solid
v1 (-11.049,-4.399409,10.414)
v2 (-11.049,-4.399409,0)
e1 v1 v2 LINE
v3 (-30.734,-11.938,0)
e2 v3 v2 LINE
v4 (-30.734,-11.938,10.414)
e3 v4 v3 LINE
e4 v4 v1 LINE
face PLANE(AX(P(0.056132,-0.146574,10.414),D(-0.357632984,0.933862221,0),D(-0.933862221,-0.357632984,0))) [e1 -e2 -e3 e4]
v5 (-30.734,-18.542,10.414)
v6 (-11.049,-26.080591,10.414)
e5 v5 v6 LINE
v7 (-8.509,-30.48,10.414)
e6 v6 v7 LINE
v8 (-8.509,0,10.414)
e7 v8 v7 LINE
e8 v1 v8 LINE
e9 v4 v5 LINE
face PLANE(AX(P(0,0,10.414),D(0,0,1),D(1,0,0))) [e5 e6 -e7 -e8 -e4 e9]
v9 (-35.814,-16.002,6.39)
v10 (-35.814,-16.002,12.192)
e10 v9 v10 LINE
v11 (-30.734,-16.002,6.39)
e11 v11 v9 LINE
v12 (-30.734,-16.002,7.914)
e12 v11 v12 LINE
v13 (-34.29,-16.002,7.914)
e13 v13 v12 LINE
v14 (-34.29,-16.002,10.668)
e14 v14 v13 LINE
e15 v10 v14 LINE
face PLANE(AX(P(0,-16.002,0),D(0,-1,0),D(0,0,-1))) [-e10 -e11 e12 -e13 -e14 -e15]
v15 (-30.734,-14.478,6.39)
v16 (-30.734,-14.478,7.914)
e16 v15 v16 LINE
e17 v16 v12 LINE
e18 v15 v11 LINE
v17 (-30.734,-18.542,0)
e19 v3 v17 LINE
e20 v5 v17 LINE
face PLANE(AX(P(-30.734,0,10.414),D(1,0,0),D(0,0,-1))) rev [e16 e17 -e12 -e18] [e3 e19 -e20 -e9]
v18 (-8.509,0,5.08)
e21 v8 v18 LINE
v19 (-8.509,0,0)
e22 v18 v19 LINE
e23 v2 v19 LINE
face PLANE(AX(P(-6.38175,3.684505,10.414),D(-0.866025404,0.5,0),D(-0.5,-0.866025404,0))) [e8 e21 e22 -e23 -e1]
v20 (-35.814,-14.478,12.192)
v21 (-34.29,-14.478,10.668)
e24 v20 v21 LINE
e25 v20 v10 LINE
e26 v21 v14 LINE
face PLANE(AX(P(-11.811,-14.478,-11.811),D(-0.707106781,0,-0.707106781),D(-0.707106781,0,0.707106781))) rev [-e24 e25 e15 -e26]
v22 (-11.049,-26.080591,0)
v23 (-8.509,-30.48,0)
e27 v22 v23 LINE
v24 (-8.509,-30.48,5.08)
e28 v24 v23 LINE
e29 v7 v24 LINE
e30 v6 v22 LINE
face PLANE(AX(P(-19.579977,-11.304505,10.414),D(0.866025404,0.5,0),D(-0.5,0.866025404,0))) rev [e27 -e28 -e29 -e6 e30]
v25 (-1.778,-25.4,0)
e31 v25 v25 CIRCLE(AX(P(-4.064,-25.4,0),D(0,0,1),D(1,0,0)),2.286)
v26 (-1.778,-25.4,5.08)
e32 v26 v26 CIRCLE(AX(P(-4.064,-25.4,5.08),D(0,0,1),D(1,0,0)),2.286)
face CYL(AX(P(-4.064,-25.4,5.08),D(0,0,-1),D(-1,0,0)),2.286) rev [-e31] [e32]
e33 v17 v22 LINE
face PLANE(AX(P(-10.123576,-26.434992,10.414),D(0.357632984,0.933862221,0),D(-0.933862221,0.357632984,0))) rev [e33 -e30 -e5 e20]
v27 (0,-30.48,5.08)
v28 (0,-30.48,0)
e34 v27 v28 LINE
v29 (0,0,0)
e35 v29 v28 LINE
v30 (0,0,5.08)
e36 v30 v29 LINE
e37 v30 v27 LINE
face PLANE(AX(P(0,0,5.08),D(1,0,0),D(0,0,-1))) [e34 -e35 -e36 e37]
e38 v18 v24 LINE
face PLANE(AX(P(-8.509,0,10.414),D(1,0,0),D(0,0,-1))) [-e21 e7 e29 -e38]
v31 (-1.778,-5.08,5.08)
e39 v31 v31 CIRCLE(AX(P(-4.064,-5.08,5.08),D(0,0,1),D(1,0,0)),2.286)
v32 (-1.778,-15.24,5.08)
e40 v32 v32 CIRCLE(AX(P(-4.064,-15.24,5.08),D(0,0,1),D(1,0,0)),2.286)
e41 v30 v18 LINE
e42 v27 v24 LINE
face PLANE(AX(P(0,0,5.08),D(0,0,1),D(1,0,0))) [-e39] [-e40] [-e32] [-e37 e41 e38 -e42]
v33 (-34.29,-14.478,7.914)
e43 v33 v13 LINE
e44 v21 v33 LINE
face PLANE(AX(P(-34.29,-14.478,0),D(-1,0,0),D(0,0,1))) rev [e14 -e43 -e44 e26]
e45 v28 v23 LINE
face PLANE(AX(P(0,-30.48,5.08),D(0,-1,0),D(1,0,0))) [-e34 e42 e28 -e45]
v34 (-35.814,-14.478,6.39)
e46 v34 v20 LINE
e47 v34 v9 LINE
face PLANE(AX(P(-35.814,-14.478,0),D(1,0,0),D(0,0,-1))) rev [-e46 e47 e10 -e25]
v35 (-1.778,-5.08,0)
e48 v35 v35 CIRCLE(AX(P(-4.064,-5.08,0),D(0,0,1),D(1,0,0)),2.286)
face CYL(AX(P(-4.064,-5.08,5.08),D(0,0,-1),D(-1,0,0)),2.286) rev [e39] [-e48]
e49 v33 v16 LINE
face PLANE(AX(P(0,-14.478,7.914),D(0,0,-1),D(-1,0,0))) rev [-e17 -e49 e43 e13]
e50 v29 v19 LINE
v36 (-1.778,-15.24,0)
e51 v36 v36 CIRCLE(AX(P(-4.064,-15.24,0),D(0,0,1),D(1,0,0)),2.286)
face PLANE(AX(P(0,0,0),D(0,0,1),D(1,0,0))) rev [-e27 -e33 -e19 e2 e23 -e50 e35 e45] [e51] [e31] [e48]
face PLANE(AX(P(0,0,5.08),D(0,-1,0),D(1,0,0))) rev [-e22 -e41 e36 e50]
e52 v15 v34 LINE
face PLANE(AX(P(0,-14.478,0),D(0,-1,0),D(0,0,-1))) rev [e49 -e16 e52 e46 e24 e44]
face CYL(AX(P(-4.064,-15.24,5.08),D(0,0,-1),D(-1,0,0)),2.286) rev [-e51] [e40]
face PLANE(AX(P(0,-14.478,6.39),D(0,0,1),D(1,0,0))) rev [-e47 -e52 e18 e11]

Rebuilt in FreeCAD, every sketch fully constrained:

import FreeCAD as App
import Part
import Sketcher

V = App.Vector
Q = App.Units.Quantity

doc = App.newDocument("Part")
body = doc.addObject("PartDesign::Body", "Body")

# Sketch on XY plane
sketch1 = doc.addObject("Sketcher::SketchObject", "Sketch")
body.addObject(sketch1)
sketch1.AttachmentSupport = (doc.XY_Plane, [""])
sketch1.MapMode = "FlatFace"
sketch1.addGeometry(Part.LineSegment(V(-8.509, 0, 0), V(-8.509, -30.48, 0)), False)
sketch1.addGeometry(Part.LineSegment(V(-8.509, -30.48, 0), V(0, -30.48, 0)), False)
sketch1.addGeometry(Part.LineSegment(V(0, -30.48, 0), V(0, 0, 0)), False)
sketch1.addGeometry(Part.LineSegment(V(0, 0, 0), V(-8.509, 0, 0)), False)
sketch1.addGeometry(Part.Circle(V(-4.064, -25.4, 0), V(0, 0, 1), 2.286), False)
sketch1.addGeometry(Part.Circle(V(-4.064, -15.24, 0), V(0, 0, 1), 2.286), False)
sketch1.addGeometry(Part.Circle(V(-4.064, -5.08, 0), V(0, 0, 1), 2.286), False)
sketch1.addConstraint(Sketcher.Constraint("Coincident", 0, 2, 1, 1))
sketch1.addConstraint(Sketcher.Constraint("Coincident", 1, 2, 2, 1))
sketch1.addConstraint(Sketcher.Constraint("Coincident", 2, 2, 3, 1))
sketch1.addConstraint(Sketcher.Constraint("Coincident", 3, 2, 0, 1))
sketch1.addConstraint(Sketcher.Constraint("Vertical", 0))
sketch1.addConstraint(Sketcher.Constraint("Horizontal", 1))
sketch1.addConstraint(Sketcher.Constraint("Vertical", 2))
sketch1.addConstraint(Sketcher.Constraint("Horizontal", 3))
sketch1.addConstraint(Sketcher.Constraint("Coincident", 2, 2, -1, 1))
sketch1.addConstraint(Sketcher.Constraint("Equal", 4, 5))
sketch1.addConstraint(Sketcher.Constraint("Equal", 5, 6))
sketch1.addConstraint(Sketcher.Constraint("Vertical", 4, 3, 5, 3))
sketch1.addConstraint(Sketcher.Constraint("Vertical", 5, 3, 6, 3))
sketch1.addConstraint(Sketcher.Constraint("Diameter", 4, Q("0.18 in")))
sketch1.addConstraint(Sketcher.Constraint("DistanceY", 0, 2, 0, 1, Q("1.2 in")))
sketch1.addConstraint(Sketcher.Constraint("DistanceY", 4, 3, -1, 1, Q("1 in")))
sketch1.addConstraint(Sketcher.Constraint("DistanceY", 0, 2, 6, 3, Q("1 in")))
sketch1.addConstraint(Sketcher.Constraint("DistanceY", 5, 3, -1, 1, Q("0.6 in")))
sketch1.addConstraint(Sketcher.Constraint("DistanceX", 1, 1, 1, 2, Q("0.335 in")))
sketch1.addConstraint(Sketcher.Constraint("DistanceX", 4, 3, -1, 1, Q("0.16 in")))
pad1 = doc.addObject("PartDesign::Pad", "Pad")
body.addObject(pad1)
pad1.Profile = sketch1
pad1.Length = Q("0.2 in")

# Sketch on XY plane
sketch2 = doc.addObject("Sketcher::SketchObject", "Sketch001")
body.addObject(sketch2)
sketch2.AttachmentSupport = (doc.XY_Plane, [""])
sketch2.MapMode = "FlatFace"
sketch2.addGeometry(Part.LineSegment(V(-8.509, -30.48, 0), V(-8.509, 0, 0)), False)
sketch2.addGeometry(Part.LineSegment(V(-8.509, 0, 0), V(-11.049, -4.399409, 0)), False)
sketch2.addGeometry(Part.LineSegment(V(-11.049, -4.399409, 0), V(-30.734, -11.938, 0)), False)
sketch2.addGeometry(Part.LineSegment(V(-30.734, -11.938, 0), V(-30.734, -18.542, 0)), False)
sketch2.addGeometry(Part.LineSegment(V(-30.734, -18.542, 0), V(-11.049, -26.080591, 0)), False)
sketch2.addGeometry(Part.LineSegment(V(-11.049, -26.080591, 0), V(-8.509, -30.48, 0)), False)
sketch2.addConstraint(Sketcher.Constraint("Coincident", 0, 2, 1, 1))
sketch2.addConstraint(Sketcher.Constraint("Coincident", 1, 2, 2, 1))
sketch2.addConstraint(Sketcher.Constraint("Coincident", 2, 2, 3, 1))
sketch2.addConstraint(Sketcher.Constraint("Coincident", 3, 2, 4, 1))
sketch2.addConstraint(Sketcher.Constraint("Coincident", 4, 2, 5, 1))
sketch2.addConstraint(Sketcher.Constraint("Coincident", 5, 2, 0, 1))
sketch2.addConstraint(Sketcher.Constraint("Vertical", 0))
sketch2.addConstraint(Sketcher.Constraint("Vertical", 3))
sketch2.addConstraint(Sketcher.Constraint("PointOnObject", 0, 2, -1))
sketch2.addConstraint(Sketcher.Constraint("Vertical", 1, 2, 4, 2))
sketch2.addConstraint(Sketcher.Constraint("Equal", 2, 4))
sketch2.addConstraint(Sketcher.Constraint("Equal", 1, 5))
sketch2.addConstraint(Sketcher.Constraint("DistanceY", 0, 1, 0, 2, Q("1.2 in")))
sketch2.addConstraint(Sketcher.Constraint("Angle", 1, Q("-120 deg")))
sketch2.addConstraint(Sketcher.Constraint("Distance", 1, Q("0.2 in")))
sketch2.addConstraint(Sketcher.Constraint("DistanceY", 3, 2, 3, 1, Q("0.26 in")))
sketch2.addConstraint(Sketcher.Constraint("DistanceX", 2, 2, -1, 1, Q("1.21 in")))
sketch2.addConstraint(Sketcher.Constraint("DistanceX", 0, 2, -1, 1, Q("0.335 in")))
pad2 = doc.addObject("PartDesign::Pad", "Pad001")
body.addObject(pad2)
pad2.Profile = sketch2
pad2.Length = Q("0.41 in")

# Sketch on XZ plane
sketch3 = doc.addObject("Sketcher::SketchObject", "Sketch002")
body.addObject(sketch3)
sketch3.AttachmentSupport = (doc.XZ_Plane, [""])
sketch3.MapMode = "FlatFace"
sketch3.AttachmentOffset = App.Placement(V(0, 0, 0.6 * 25.4), App.Rotation())
sketch3.addGeometry(Part.LineSegment(V(-35.814, 6.39, 0), V(-30.734, 6.39, 0)), False)
sketch3.addGeometry(Part.LineSegment(V(-30.734, 6.39, 0), V(-30.734, 7.914, 0)), False)
sketch3.addGeometry(Part.LineSegment(V(-30.734, 7.914, 0), V(-34.29, 7.914, 0)), False)
sketch3.addGeometry(Part.LineSegment(V(-34.29, 7.914, 0), V(-34.29, 10.668, 0)), False)
sketch3.addGeometry(Part.LineSegment(V(-34.29, 10.668, 0), V(-35.814, 12.192, 0)), False)
sketch3.addGeometry(Part.LineSegment(V(-35.814, 12.192, 0), V(-35.814, 6.39, 0)), False)
sketch3.addConstraint(Sketcher.Constraint("Coincident", 0, 2, 1, 1))
sketch3.addConstraint(Sketcher.Constraint("Coincident", 1, 2, 2, 1))
sketch3.addConstraint(Sketcher.Constraint("Coincident", 2, 2, 3, 1))
sketch3.addConstraint(Sketcher.Constraint("Coincident", 3, 2, 4, 1))
sketch3.addConstraint(Sketcher.Constraint("Coincident", 4, 2, 5, 1))
sketch3.addConstraint(Sketcher.Constraint("Coincident", 5, 2, 0, 1))
sketch3.addConstraint(Sketcher.Constraint("Horizontal", 0))
sketch3.addConstraint(Sketcher.Constraint("Vertical", 1))
sketch3.addConstraint(Sketcher.Constraint("Horizontal", 2))
sketch3.addConstraint(Sketcher.Constraint("Vertical", 3))
sketch3.addConstraint(Sketcher.Constraint("Vertical", 5))
sketch3.addConstraint(Sketcher.Constraint("DistanceX", 0, 1, 0, 2, Q("0.2 in")))
sketch3.addConstraint(Sketcher.Constraint("Angle", 4, Q("135 deg")))
sketch3.addConstraint(Sketcher.Constraint("DistanceX", 2, 2, 2, 1, Q("0.14 in")))
sketch3.addConstraint(Sketcher.Constraint("DistanceY", 1, 1, 1, 2, Q("0.06 in")))
sketch3.addConstraint(Sketcher.Constraint("DistanceX", 0, 2, -1, 1, Q("1.21 in")))
sketch3.addConstraint(Sketcher.Constraint("DistanceY", -1, 1, 3, 2, Q("0.42 in")))
sketch3.addConstraint(Sketcher.Constraint("DistanceY", 3, 1, 3, 2, 2.754))
pad3 = doc.addObject("PartDesign::Pad", "Pad002")
body.addObject(pad3)
pad3.Profile = sketch3
pad3.Type = "TwoLengths"
pad3.Length = Q("0.03 in")
pad3.Length2 = Q("0.03 in")

doc.recompute()
